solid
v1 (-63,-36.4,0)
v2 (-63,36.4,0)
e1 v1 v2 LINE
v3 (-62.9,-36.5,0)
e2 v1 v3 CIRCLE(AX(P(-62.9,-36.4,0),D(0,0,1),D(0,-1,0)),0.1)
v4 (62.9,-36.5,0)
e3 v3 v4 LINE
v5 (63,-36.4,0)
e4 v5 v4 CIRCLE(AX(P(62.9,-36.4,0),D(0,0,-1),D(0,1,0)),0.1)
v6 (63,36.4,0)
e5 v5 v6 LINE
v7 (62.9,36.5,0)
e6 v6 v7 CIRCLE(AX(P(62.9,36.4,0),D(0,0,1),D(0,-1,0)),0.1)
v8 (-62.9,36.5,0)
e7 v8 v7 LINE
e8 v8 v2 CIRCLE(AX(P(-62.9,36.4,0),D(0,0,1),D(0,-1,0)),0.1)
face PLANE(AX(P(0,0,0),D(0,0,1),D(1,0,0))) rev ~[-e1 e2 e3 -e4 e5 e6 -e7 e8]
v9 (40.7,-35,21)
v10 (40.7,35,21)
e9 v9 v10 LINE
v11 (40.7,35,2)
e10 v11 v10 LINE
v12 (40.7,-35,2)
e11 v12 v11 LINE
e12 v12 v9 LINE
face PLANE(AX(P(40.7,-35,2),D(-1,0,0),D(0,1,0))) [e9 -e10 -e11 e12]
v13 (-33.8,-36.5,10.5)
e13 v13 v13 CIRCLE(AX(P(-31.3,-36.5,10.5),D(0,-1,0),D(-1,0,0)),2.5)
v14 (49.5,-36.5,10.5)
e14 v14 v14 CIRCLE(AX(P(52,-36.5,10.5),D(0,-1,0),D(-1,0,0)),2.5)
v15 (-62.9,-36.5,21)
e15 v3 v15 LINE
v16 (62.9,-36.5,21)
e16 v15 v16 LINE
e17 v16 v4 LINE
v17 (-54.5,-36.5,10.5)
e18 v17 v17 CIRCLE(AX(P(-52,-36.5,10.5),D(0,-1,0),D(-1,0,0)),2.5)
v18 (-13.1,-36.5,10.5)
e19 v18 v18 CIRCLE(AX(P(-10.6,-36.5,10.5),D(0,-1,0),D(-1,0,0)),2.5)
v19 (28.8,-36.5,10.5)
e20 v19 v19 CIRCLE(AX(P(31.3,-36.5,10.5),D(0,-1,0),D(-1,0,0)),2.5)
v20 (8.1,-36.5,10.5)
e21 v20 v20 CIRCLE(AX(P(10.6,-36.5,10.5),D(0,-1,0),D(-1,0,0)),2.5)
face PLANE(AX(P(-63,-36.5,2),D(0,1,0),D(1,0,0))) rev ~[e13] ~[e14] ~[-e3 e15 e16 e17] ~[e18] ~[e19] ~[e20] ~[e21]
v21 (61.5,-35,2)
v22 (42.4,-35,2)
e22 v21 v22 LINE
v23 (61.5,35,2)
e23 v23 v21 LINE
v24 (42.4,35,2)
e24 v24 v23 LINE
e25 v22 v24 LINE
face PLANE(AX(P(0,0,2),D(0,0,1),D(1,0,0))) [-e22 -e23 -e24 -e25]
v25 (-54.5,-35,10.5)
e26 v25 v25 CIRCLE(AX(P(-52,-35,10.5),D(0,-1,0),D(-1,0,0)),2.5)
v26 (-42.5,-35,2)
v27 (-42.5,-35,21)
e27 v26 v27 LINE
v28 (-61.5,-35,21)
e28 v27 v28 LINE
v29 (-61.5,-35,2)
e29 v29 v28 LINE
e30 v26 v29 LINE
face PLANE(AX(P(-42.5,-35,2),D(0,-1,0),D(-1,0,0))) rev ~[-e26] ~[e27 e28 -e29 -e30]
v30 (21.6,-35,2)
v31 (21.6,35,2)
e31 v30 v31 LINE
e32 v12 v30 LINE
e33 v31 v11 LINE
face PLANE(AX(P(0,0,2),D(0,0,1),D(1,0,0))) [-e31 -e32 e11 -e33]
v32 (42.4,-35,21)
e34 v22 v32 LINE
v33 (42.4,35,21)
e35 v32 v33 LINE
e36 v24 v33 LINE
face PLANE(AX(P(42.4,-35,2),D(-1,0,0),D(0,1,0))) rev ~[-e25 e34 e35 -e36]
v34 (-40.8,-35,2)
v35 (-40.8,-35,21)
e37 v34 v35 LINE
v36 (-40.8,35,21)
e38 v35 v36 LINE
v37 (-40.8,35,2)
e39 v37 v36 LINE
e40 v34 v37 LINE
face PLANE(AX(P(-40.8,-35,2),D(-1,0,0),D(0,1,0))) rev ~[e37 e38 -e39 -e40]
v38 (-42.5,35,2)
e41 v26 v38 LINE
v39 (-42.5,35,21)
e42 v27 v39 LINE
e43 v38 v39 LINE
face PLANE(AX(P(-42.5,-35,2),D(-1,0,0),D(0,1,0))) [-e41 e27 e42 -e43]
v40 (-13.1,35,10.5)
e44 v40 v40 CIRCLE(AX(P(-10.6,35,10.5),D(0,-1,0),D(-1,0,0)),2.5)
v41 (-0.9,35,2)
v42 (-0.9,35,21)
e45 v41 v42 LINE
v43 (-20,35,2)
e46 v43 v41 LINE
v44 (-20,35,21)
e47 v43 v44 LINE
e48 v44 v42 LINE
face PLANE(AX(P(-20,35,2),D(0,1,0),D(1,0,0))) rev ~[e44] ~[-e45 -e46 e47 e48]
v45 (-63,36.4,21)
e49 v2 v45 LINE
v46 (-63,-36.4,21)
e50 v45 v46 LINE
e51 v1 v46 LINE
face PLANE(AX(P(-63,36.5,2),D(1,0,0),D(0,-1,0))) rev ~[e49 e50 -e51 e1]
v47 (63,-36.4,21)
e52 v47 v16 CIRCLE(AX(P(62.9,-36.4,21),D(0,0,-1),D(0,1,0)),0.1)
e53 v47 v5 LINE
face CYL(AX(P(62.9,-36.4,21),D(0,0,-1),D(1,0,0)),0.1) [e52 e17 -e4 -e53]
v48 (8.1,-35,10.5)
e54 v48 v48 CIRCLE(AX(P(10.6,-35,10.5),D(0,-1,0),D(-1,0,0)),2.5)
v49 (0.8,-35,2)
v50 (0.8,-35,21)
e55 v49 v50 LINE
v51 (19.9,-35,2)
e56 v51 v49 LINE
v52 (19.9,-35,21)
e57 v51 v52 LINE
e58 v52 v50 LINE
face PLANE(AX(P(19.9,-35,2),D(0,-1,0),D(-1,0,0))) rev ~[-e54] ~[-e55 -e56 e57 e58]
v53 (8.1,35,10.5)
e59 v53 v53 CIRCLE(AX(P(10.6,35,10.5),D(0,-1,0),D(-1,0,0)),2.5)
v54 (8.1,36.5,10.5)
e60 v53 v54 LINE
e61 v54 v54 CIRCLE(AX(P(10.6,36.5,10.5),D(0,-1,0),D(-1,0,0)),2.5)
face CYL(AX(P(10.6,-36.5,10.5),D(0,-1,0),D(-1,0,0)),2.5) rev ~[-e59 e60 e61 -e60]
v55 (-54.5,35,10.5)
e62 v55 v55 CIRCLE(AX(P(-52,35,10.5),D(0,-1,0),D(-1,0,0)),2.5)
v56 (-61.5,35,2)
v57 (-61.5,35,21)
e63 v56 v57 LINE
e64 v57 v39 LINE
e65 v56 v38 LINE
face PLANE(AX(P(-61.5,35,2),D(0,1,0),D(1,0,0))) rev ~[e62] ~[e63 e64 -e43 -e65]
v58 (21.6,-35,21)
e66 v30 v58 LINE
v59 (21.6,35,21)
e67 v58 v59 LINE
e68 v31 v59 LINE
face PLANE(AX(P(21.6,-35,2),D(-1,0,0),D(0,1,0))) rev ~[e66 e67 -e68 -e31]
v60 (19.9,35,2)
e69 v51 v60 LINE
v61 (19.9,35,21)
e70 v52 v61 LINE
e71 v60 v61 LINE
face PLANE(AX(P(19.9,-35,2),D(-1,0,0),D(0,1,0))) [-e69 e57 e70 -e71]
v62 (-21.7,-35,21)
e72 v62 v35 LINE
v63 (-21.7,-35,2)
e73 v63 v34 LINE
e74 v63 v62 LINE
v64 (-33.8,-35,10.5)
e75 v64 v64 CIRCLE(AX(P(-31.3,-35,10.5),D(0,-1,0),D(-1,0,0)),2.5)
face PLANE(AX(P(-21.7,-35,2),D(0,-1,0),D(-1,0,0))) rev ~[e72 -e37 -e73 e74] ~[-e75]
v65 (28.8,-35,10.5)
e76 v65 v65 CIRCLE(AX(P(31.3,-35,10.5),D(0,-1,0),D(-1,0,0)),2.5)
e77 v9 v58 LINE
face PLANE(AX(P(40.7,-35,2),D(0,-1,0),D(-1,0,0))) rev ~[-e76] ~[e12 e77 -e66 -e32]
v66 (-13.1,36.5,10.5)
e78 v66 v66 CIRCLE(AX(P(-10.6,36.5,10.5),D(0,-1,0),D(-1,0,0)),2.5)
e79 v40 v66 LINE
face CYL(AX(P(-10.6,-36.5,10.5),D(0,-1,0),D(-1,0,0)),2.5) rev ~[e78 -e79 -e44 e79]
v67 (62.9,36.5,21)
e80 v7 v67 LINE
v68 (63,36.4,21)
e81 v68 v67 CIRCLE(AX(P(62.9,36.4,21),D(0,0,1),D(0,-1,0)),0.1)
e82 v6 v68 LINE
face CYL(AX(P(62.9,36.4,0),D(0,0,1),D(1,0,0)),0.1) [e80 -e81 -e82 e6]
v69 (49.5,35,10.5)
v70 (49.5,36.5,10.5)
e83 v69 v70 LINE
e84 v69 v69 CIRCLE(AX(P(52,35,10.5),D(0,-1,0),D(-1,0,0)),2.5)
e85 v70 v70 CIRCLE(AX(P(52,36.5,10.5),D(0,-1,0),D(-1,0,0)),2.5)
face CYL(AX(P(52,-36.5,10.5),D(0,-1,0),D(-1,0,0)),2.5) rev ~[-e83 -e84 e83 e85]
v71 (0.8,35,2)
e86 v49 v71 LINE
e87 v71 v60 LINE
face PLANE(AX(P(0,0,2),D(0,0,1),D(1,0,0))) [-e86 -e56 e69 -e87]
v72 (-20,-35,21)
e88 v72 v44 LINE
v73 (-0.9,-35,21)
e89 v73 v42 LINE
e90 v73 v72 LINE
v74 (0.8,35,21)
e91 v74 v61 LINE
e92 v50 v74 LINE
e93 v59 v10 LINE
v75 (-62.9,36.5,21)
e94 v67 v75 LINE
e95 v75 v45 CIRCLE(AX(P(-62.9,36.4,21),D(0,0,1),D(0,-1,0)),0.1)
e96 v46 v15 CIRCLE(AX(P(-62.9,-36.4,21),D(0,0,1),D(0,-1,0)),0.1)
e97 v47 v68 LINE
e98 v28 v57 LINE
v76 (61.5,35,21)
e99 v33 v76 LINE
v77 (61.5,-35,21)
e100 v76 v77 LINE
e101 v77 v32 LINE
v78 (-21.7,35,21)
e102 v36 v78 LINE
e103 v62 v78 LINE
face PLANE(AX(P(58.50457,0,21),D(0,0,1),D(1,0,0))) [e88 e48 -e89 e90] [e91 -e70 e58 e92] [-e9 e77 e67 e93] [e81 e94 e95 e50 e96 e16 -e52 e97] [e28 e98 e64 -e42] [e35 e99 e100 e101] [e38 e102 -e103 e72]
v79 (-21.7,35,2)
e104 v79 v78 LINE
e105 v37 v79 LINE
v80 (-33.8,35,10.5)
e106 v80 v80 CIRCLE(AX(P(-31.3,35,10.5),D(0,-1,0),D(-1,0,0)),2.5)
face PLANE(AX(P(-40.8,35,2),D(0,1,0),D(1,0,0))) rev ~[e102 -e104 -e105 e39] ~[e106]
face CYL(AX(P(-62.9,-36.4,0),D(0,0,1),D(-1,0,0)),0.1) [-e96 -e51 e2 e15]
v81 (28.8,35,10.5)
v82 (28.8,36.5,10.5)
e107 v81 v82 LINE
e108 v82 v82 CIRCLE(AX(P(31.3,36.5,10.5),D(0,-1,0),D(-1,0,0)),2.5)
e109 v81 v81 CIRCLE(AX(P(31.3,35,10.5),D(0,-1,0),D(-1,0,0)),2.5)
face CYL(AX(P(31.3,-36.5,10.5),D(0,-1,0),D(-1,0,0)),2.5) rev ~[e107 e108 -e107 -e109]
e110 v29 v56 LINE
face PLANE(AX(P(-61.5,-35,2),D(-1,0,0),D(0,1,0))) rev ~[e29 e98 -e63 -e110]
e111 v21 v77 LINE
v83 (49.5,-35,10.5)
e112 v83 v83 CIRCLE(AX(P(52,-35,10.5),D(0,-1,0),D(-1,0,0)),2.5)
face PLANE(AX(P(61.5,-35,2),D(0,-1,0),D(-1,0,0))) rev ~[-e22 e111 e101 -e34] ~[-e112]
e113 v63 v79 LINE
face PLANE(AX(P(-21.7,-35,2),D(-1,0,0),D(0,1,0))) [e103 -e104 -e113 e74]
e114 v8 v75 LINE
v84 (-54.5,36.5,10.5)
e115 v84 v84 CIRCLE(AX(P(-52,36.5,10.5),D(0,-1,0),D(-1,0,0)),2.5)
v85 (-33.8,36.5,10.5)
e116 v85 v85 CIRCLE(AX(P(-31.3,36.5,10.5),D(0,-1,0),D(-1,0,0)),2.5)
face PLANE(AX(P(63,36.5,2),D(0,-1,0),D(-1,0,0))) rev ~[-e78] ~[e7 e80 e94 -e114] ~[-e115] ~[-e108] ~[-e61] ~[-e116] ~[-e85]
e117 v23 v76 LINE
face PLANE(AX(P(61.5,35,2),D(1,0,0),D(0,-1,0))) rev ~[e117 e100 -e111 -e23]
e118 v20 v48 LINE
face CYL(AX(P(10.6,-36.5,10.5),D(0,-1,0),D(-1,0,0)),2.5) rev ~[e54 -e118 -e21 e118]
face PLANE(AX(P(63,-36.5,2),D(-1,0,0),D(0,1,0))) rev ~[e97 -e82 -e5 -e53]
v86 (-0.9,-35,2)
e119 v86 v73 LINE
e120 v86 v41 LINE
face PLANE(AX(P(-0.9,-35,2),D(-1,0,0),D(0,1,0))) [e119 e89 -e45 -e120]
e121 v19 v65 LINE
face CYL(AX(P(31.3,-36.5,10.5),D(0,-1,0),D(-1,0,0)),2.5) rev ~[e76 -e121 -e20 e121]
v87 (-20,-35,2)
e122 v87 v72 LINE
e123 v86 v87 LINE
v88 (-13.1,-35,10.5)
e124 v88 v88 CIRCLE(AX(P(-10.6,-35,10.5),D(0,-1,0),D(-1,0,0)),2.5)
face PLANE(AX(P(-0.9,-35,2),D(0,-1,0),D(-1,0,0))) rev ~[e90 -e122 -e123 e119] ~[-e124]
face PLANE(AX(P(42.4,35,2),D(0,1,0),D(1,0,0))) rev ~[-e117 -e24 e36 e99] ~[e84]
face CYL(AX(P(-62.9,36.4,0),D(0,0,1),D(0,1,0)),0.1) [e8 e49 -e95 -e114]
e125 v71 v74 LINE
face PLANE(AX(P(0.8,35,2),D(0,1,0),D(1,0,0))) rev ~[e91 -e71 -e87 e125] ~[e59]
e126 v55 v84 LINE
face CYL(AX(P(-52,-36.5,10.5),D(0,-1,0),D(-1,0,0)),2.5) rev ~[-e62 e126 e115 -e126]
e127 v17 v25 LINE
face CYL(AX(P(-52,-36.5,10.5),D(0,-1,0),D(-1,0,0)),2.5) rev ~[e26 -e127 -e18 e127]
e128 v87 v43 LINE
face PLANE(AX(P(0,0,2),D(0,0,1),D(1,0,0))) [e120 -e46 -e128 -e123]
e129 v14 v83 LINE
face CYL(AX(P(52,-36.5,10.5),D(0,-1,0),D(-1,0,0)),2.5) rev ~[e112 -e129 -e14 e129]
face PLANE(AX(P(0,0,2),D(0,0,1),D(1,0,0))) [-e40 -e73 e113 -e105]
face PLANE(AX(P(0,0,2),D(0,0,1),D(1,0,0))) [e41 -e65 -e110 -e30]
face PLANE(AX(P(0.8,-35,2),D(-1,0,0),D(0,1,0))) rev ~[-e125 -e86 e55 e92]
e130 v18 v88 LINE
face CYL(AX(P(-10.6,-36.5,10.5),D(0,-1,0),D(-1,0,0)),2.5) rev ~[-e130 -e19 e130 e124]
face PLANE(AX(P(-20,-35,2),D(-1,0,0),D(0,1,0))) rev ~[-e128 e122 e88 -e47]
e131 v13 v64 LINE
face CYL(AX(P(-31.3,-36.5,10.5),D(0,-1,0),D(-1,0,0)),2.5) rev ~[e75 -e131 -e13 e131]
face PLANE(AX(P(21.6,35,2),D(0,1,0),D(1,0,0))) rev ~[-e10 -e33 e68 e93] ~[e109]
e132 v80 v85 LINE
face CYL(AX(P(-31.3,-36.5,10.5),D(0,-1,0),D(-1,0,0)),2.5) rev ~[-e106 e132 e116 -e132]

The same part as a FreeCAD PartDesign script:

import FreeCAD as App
import Part
import Sketcher

V = App.Vector
Q = App.Units.Quantity


def edges_at(feature, points):
    """Names of the edges that pass closest to the given points."""
    edges = feature.Shape.Edges
    near = lambda p: min(range(len(edges)), key=lambda i: edges[i].distToShape(Part.Vertex(*p))[0])
    return sorted({f"Edge{near(p) + 1}" for p in points})


def add_polygon(sketch, points):
    """Adds a closed chain of lines whose ends are joined by coincident constraints."""
    first, n = sketch.GeometryCount, len(points)
    for a, b in zip(points, points[1:] + points[:1]):
        sketch.addGeometry(Part.LineSegment(App.Vector(*a, 0), App.Vector(*b, 0)), False)
    for i in range(n):
        sketch.addConstraint(Sketcher.Constraint("Coincident", first + i, 2, first + (i + 1) % n, 1))

doc = App.newDocument("Part")
body = doc.addObject("PartDesign::Body", "Body")

# Sketch on XY plane
sketch1 = body.newObject("Sketcher::SketchObject", "Sketch")
sketch1.AttachmentSupport = (doc.getObject("XY_Plane"), [""])
sketch1.MapMode = "FlatFace"
add_polygon(sketch1, [(-63, 36), (-63, -36), (63, -36), (63, 36)])  # lines 0-3
sketch1.addConstraint(Sketcher.Constraint("Vertical", 0))
sketch1.addConstraint(Sketcher.Constraint("Horizontal", 1))
sketch1.addConstraint(Sketcher.Constraint("Vertical", 2))
sketch1.addConstraint(Sketcher.Constraint("Horizontal", 3))
sketch1.addConstraint(Sketcher.Constraint("Symmetric", 0, 2, 2, 2, -1, 1))
sketch1.addConstraint(Sketcher.Constraint("DistanceX", 1, 1, 1, 2, Q("126 mm")))
sketch1.addConstraint(Sketcher.Constraint("DistanceY", 0, 2, 0, 1, Q("73 mm")))
pad1 = body.newObject("PartDesign::Pad", "Pad")
pad1.Profile = sketch1
pad1.Length = 2

# Sketch on XY plane
sketch2 = body.newObject("Sketcher::SketchObject", "Sketch001")
sketch2.AttachmentSupport = (doc.getObject("XY_Plane"), [""])
sketch2.MapMode = "FlatFace"
sketch2.AttachmentOffset = App.Placement(V(0, 0, 2), App.Rotation())
add_polygon(sketch2, [(63, -36), (63, 36), (-63, 36), (-63, -36)])  # lines 0-3
add_polygon(sketch2, [(62, 35), (62, -35), (42, -35), (42, 35)])  # lines 4-7
add_polygon(sketch2, [(41, -35), (22, -35), (22, 35), (41, 35)])  # lines 8-11
add_polygon(sketch2, [(20, -35), (1, -35), (1, 35), (20, 35)])  # lines 12-15
add_polygon(sketch2, [(-1, -35), (-20, -35), (-20, 35), (-1, 35)])  # lines 16-19
add_polygon(sketch2, [(-22, -35), (-41, -35), (-41, 35), (-22, 35)])  # lines 20-23
add_polygon(sketch2, [(-42, -35), (-62, -35), (-62, 35), (-42, 35)])  # lines 24-27
sketch2.addConstraint(Sketcher.Constraint("Vertical", 0))
sketch2.addConstraint(Sketcher.Constraint("Horizontal", 1))
sketch2.addConstraint(Sketcher.Constraint("Vertical", 2))
sketch2.addConstraint(Sketcher.Constraint("Horizontal", 3))
sketch2.addConstraint(Sketcher.Constraint("Vertical", 4))
sketch2.addConstraint(Sketcher.Constraint("Horizontal", 5))
sketch2.addConstraint(Sketcher.Constraint("Vertical", 6))
sketch2.addConstraint(Sketcher.Constraint("Horizontal", 7))
sketch2.addConstraint(Sketcher.Constraint("Horizontal", 8))
sketch2.addConstraint(Sketcher.Constraint("Vertical", 9))
sketch2.addConstraint(Sketcher.Constraint("Horizontal", 10))
sketch2.addConstraint(Sketcher.Constraint("Vertical", 11))
sketch2.addConstraint(Sketcher.Constraint("Horizontal", 12))
sketch2.addConstraint(Sketcher.Constraint("Vertical", 13))
sketch2.addConstraint(Sketcher.Constraint("Horizontal", 14))
sketch2.addConstraint(Sketcher.Constraint("Vertical", 15))
sketch2.addConstraint(Sketcher.Constraint("Horizontal", 16))
sketch2.addConstraint(Sketcher.Constraint("Vertical", 17))
sketch2.addConstraint(Sketcher.Constraint("Horizontal", 18))
sketch2.addConstraint(Sketcher.Constraint("Vertical", 19))
sketch2.addConstraint(Sketcher.Constraint("Horizontal", 20))
sketch2.addConstraint(Sketcher.Constraint("Vertical", 21))
sketch2.addConstraint(Sketcher.Constraint("Horizontal", 22))
sketch2.addConstraint(Sketcher.Constraint("Vertical", 23))
sketch2.addConstraint(Sketcher.Constraint("Horizontal", 24))
sketch2.addConstraint(Sketcher.Constraint("Vertical", 25))
sketch2.addConstraint(Sketcher.Constraint("Horizontal", 26))
sketch2.addConstraint(Sketcher.Constraint("Vertical", 27))
sketch2.addConstraint(Sketcher.Constraint("Symmetric", 0, 2, 2, 2, -1, 1))
sketch2.addConstraint(Sketcher.Constraint("Symmetric", 7, 2, 24, 2, -1, 1))
sketch2.addConstraint(Sketcher.Constraint("Horizontal", 5, 2, 8, 2))
sketch2.addConstraint(Sketcher.Constraint("Horizontal", 7, 2, 9, 2))
sketch2.addConstraint(Sketcher.Constraint("Horizontal", 11, 2, 12, 2))
sketch2.addConstraint(Sketcher.Constraint("Horizontal", 10, 2, 13, 2))
sketch2.addConstraint(Sketcher.Constraint("Horizontal", 15, 2, 16, 2))
sketch2.addConstraint(Sketcher.Constraint("Horizontal", 14, 2, 17, 2))
sketch2.addConstraint(Sketcher.Constraint("Horizontal", 19, 2, 20, 2))
sketch2.addConstraint(Sketcher.Constraint("Horizontal", 18, 2, 21, 2))
sketch2.addConstraint(Sketcher.Constraint("Horizontal", 23, 2, 24, 2))
sketch2.addConstraint(Sketcher.Constraint("Horizontal", 22, 2, 25, 2))
sketch2.addConstraint(Sketcher.Constraint("Equal", 7, 8))
sketch2.addConstraint(Sketcher.Constraint("Equal", 10, 12))
sketch2.addConstraint(Sketcher.Constraint("Equal", 14, 16))
sketch2.addConstraint(Sketcher.Constraint("Equal", 18, 20))
sketch2.addConstraint(Sketcher.Constraint("DistanceX", 1, 2, 1, 1, Q("126 mm")))
sketch2.addConstraint(Sketcher.Constraint("DistanceX", 24, 2, 24, 1, Q("19 mm")))
sketch2.addConstraint(Sketcher.Constraint("DistanceY", 0, 1, 0, 2, Q("73 mm")))
sketch2.addConstraint(Sketcher.Constraint("DistanceY", 4, 2, 4, 1, Q("70 mm")))
sketch2.addConstraint(Sketcher.Constraint("DistanceX", 5, 2, 5, 1, Q("19.1 mm")))
sketch2.addConstraint(Sketcher.Constraint("DistanceX", 16, 2, -1, 1, Q("20 mm")))
sketch2.addConstraint(Sketcher.Constraint("DistanceX", -1, 1, 4, 2, Q("61.5 mm")))
sketch2.addConstraint(Sketcher.Constraint("DistanceX", -1, 1, 8, 2, Q("21.6 mm")))
sketch2.addConstraint(Sketcher.Constraint("DistanceX", -1, 1, 12, 2, Q("0.8 mm")))
sketch2.addConstraint(Sketcher.Constraint("DistanceX", 20, 2, -1, 1, Q("40.8 mm")))
pad2 = body.newObject("PartDesign::Pad", "Pad001")
pad2.Profile = sketch2
pad2.Length = 19

# Sketch on XZ plane
sketch3 = body.newObject("Sketcher::SketchObject", "Sketch002")
sketch3.AttachmentSupport = (doc.getObject("XZ_Plane"), [""])
sketch3.MapMode = "FlatFace"
sketch3.AttachmentOffset = App.Placement(V(0, 0, 36.5), App.Rotation())
sketch3.addGeometry(Part.Circle(V(-52, 10.5, 0), V(0, 0, 1), 2.5), False)
sketch3.addGeometry(Part.Circle(V(52, 10.5, 0), V(0, 0, 1), 2.5), False)
sketch3.addGeometry(Part.Circle(V(31.3, 10.5, 0), V(0, 0, 1), 2.5), False)
sketch3.addGeometry(Part.Circle(V(10.6, 10.5, 0), V(0, 0, 1), 2.5), False)
sketch3.addGeometry(Part.Circle(V(-10.6, 10.5, 0), V(0, 0, 1), 2.5), False)
sketch3.addGeometry(Part.Circle(V(-31.3, 10.5, 0), V(0, 0, 1), 2.5), False)
sketch3.addConstraint(Sketcher.Constraint("Equal", 0, 1))
sketch3.addConstraint(Sketcher.Constraint("Equal", 1, 2))
sketch3.addConstraint(Sketcher.Constraint("Equal", 2, 3))
sketch3.addConstraint(Sketcher.Constraint("Equal", 3, 4))
sketch3.addConstraint(Sketcher.Constraint("Equal", 4, 5))
sketch3.addConstraint(Sketcher.Constraint("Symmetric", 0, 3, 1, 3, -2))
sketch3.addConstraint(Sketcher.Constraint("Symmetric", 3, 3, 4, 3, -2))
sketch3.addConstraint(Sketcher.Constraint("Symmetric", 2, 3, 5, 3, -2))
sketch3.addConstraint(Sketcher.Constraint("Horizontal", 1, 3, 2, 3))
sketch3.addConstraint(Sketcher.Constraint("Horizontal", 2, 3, 3, 3))
sketch3.addConstraint(Sketcher.Constraint("Diameter", 0, Q("5 mm")))
sketch3.addConstraint(Sketcher.Constraint("DistanceX", 0, 3, -1, 1, Q("52 mm")))
sketch3.addConstraint(Sketcher.Constraint("DistanceY", -1, 1, 0, 3, Q("10.5 mm")))
sketch3.addConstraint(Sketcher.Constraint("DistanceX", -1, 1, 2, 3, Q("31.3 mm")))
sketch3.addConstraint(Sketcher.Constraint("DistanceX", -1, 1, 3, 3, Q("10.6 mm")))
pocket1 = body.newObject("PartDesign::Pocket", "Pocket")
pocket1.Profile = sketch3
pocket1.Length = 100
doc.recompute()

fillet = body.newObject("PartDesign::Fillet", "Fillet")
fillet.Base = (pocket1, edges_at(pocket1, [
    (-63, -36.5, 10.5),
    (63, -36.5, 10.5),
    (63, 36.5, 10.5),
    (-63, 36.5, 10.5),
]))
fillet.Radius = 0.1

doc.recompute()
